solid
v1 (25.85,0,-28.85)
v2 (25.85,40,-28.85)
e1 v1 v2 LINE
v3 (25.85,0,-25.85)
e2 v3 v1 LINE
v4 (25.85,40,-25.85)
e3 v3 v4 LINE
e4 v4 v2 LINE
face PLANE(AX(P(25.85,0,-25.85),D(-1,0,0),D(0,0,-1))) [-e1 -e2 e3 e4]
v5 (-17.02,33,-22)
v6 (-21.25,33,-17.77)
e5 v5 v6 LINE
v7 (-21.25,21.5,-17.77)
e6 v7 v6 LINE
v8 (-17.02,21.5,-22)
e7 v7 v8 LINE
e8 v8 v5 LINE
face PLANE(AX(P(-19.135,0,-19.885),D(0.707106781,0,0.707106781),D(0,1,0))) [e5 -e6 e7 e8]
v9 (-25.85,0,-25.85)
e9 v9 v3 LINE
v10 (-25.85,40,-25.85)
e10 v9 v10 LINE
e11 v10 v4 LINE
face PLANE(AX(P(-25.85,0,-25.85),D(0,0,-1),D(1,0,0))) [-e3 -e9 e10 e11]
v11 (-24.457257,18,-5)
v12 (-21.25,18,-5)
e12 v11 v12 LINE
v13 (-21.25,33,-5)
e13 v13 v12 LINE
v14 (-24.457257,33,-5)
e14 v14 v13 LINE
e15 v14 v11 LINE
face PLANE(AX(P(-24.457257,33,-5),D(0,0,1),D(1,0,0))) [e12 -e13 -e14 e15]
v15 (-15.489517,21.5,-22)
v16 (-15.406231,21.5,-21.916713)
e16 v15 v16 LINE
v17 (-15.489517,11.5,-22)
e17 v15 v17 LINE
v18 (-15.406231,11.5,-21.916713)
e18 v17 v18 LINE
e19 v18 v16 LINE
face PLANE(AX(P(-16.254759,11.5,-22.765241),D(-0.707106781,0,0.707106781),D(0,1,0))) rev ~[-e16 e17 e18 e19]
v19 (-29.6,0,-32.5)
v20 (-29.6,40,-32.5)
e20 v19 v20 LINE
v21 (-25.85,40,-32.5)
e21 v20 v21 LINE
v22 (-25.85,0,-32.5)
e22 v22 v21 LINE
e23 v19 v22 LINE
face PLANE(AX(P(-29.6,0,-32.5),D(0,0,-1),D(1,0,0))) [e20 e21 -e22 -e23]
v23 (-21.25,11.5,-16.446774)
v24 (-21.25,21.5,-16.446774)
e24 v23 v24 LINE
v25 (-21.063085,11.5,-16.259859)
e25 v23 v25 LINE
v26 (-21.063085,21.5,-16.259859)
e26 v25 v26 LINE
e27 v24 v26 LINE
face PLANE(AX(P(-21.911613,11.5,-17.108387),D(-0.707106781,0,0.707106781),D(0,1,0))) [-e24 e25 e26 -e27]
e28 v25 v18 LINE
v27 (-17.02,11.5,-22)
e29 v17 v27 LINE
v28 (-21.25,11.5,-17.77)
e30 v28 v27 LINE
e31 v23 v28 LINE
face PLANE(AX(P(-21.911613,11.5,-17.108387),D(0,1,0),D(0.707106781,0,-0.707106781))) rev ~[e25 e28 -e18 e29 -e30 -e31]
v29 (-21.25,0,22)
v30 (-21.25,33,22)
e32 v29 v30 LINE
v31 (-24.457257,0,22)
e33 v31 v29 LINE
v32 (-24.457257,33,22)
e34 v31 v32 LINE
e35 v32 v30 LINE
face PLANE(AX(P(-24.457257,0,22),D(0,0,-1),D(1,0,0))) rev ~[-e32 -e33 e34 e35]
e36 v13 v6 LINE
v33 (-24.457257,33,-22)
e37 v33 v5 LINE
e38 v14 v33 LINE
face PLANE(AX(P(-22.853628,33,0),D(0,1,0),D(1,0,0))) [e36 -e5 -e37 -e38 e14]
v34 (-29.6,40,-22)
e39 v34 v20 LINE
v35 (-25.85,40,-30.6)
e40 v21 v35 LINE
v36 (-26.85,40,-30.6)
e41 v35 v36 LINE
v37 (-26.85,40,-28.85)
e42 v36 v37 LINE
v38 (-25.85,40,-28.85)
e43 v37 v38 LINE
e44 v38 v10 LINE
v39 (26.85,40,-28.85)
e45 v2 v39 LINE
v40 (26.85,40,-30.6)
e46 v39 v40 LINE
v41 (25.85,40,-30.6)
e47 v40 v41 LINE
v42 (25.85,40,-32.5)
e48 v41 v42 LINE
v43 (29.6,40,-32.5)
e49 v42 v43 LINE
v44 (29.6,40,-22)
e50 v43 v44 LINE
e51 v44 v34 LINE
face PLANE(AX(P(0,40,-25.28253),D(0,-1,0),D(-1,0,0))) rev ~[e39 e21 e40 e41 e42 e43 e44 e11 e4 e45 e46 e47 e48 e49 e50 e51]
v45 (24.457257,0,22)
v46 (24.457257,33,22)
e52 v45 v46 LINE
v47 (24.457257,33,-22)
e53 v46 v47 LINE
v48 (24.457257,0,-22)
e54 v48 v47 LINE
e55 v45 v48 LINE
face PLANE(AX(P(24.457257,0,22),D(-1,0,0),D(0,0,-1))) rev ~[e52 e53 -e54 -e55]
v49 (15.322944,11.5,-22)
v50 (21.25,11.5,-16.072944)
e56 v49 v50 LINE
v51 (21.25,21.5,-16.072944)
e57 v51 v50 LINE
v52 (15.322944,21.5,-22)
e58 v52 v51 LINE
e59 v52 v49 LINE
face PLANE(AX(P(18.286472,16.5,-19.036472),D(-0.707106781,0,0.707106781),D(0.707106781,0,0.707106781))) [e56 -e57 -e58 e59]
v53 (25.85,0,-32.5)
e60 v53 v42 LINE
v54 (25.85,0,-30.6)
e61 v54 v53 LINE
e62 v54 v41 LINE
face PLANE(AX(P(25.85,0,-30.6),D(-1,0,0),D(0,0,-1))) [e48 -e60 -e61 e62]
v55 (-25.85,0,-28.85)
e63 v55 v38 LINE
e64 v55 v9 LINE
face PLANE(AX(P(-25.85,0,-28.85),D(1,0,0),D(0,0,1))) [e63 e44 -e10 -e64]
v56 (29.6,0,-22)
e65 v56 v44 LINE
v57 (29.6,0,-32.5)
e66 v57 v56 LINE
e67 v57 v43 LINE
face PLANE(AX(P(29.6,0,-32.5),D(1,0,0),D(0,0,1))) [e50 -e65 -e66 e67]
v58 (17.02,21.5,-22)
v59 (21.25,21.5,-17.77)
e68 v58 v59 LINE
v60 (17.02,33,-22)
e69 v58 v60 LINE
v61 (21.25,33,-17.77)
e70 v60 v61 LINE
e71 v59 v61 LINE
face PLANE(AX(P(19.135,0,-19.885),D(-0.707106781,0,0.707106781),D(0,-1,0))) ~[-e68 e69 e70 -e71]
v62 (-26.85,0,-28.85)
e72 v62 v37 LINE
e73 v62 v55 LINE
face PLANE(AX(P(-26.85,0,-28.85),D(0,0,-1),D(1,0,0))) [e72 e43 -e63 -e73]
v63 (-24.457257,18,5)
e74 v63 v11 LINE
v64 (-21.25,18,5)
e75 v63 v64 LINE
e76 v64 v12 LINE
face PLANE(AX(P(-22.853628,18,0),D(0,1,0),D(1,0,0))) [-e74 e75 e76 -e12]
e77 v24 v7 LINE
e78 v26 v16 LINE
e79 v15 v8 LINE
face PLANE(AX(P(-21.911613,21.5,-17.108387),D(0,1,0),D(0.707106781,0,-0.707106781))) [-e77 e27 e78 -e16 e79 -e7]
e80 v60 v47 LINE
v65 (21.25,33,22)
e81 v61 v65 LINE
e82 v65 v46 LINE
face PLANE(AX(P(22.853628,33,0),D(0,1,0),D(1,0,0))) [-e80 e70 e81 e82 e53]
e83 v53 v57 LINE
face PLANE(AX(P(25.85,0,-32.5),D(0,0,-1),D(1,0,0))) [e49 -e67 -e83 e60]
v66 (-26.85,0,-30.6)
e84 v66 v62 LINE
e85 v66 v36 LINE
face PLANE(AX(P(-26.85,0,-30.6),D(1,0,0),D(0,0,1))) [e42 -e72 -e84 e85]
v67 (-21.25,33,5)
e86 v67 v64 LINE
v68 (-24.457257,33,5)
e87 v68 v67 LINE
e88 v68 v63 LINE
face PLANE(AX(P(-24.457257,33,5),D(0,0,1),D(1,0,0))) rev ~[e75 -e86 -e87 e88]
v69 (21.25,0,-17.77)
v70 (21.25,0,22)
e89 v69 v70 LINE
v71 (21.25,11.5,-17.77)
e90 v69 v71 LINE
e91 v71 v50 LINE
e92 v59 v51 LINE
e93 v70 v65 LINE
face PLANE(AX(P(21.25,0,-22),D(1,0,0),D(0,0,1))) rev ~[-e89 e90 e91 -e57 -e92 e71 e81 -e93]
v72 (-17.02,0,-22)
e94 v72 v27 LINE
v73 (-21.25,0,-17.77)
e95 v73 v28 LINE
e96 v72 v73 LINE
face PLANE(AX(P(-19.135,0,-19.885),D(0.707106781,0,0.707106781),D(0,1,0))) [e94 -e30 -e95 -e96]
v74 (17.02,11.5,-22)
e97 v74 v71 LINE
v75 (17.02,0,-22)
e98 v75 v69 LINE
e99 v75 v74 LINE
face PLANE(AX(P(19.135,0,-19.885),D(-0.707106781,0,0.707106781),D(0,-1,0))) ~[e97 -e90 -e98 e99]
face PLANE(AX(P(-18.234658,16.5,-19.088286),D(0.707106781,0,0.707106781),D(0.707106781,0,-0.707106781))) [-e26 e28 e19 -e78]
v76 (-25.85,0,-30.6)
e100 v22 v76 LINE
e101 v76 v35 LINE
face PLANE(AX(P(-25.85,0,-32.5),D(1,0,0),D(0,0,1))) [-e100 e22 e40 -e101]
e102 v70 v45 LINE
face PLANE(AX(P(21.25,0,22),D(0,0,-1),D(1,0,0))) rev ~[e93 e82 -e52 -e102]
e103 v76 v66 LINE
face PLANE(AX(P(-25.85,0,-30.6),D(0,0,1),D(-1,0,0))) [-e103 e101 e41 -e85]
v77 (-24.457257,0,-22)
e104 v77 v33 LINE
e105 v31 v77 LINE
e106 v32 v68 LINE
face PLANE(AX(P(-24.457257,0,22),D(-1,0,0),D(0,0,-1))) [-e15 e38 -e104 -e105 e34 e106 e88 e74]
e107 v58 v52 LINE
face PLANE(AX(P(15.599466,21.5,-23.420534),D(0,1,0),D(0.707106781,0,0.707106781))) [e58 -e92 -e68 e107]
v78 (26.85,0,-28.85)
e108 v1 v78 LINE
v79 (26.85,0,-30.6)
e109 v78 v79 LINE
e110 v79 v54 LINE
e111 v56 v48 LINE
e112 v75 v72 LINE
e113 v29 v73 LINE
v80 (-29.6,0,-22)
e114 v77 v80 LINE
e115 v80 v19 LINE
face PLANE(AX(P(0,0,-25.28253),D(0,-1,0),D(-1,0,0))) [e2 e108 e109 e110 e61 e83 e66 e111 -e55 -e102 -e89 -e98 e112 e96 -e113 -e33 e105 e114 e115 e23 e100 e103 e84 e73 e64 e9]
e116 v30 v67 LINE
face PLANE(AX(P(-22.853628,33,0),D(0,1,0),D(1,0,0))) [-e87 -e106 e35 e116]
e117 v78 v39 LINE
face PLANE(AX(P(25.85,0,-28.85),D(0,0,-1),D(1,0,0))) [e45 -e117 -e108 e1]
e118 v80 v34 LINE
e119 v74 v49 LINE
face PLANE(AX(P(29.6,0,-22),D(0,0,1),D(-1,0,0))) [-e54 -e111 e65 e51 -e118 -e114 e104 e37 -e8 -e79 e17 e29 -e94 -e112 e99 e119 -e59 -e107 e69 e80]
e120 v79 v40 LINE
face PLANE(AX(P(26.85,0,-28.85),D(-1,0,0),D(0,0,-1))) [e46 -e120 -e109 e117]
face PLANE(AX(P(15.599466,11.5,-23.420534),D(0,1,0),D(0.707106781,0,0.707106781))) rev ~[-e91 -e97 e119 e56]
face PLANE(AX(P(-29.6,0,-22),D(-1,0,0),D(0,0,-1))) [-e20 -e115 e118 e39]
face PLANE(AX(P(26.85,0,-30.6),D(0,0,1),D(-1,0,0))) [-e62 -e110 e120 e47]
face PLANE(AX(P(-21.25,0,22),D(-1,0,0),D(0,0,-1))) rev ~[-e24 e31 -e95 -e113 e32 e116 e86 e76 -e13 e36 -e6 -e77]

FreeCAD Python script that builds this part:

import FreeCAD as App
import Part
import Sketcher

V = App.Vector


def edges_at(feature, points):
    """Names of the edges that pass closest to the given points."""
    edges = feature.Shape.Edges
    near = lambda p: min(range(len(edges)), key=lambda i: edges[i].distToShape(Part.Vertex(*p))[0])
    return sorted({f"Edge{near(p) + 1}" for p in points})


def add_polygon(sketch, points):
    """Adds a closed chain of lines whose ends are joined by coincident constraints."""
    first, n = sketch.GeometryCount, len(points)
    for a, b in zip(points, points[1:] + points[:1]):
        sketch.addGeometry(Part.LineSegment(App.Vector(*a, 0), App.Vector(*b, 0)), False)
    for i in range(n):
        sketch.addConstraint(Sketcher.Constraint("Coincident", first + i, 2, first + (i + 1) % n, 1))

doc = App.newDocument("Part")
params = doc.addObject("Spreadsheet::Sheet", "Params")
for row, (alias, value) in enumerate([
    ("sketch1_height", "44 mm"),
    ("pad1_length", "33 mm"),
    ("sketch2_height", "44 mm"),
    ("pad2_length", "33 mm"),
    ("sketch3_width", "1 mm"),
    ("sketch3_height", "3 mm"),
    ("sketch3_width2", "59.2 mm"),
    ("sketch3_width3", "51.7 mm"),
    ("sketch3_height2", "1.9 mm"),
    ("pad3_length", "40 mm"),
    ("chamfer_size", "4.23 mm"),
    ("sketch4_width", "8 mm"),
    ("sketch4_height", "10 mm"),
    ("pad4_length", "1.2 mm"),
    ("sketch5_width", "10 mm"),
    ("pad5_length", "1.2 mm"),
    ("sketch6_height", "10 mm"),
    ("pocket1_length", "15 mm"),
], start=1):
    params.set(f"A{row}", alias)
    params.set(f"B{row}", "=" + value)
    params.setAlias(f"B{row}", alias)

body = doc.addObject("PartDesign::Body", "Body")

sketch1 = body.newObject("Sketcher::SketchObject", "Sketch")
sketch1.AttachmentSupport = (doc.getObject("XZ_Plane"), [""])
sketch1.MapMode = "FlatFace"
add_polygon(sketch1, [(-24.5, -22), (-24.5, 22), (-21.3, 22), (-21.3, -22)])
sketch1.addConstraint([
    Sketcher.Constraint("Vertical", 0),
    Sketcher.Constraint("Horizontal", 1),
    Sketcher.Constraint("Vertical", 2),
    Sketcher.Constraint("Horizontal", 3),
    Sketcher.Constraint("DistanceY", 0, 1, 0, 2, 44.0),
    Sketcher.Constraint("DistanceY", -1, 1, 0, 2, 22.0),
    Sketcher.Constraint("DistanceX", 1, 2, -1, 1, 21.25),
    Sketcher.Constraint("DistanceX", 1, 1, 1, 2, 3.207257),
])
sketch1.setExpression("Constraints[8]", "Params.sketch1_height")
pad1 = body.newObject("PartDesign::Pad", "Pad")
pad1.Profile = sketch1
pad1.setExpression("Length", "Params.pad1_length")
pad1.Reversed = True
body2 = doc.addObject("PartDesign::Body", "Body001")

sketch2 = body2.newObject("Sketcher::SketchObject", "Sketch001")
sketch2.AttachmentSupport = (doc.getObject("XZ_Plane001"), [""])
sketch2.MapMode = "FlatFace"
add_polygon(sketch2, [(21.2, -22), (21.2, 22), (24.5, 22), (24.5, -22)])
sketch2.addConstraint([
    Sketcher.Constraint("Vertical", 0),
    Sketcher.Constraint("Horizontal", 1),
    Sketcher.Constraint("Vertical", 2),
    Sketcher.Constraint("Horizontal", 3),
    Sketcher.Constraint("DistanceY", 0, 1, 0, 2, 44.0),
    Sketcher.Constraint("DistanceY", -1, 1, 0, 2, 22.0),
    Sketcher.Constraint("DistanceX", -1, 1, 0, 2, 21.25),
    Sketcher.Constraint("DistanceX", 1, 1, 1, 2, 3.207257),
])
sketch2.setExpression("Constraints[8]", "Params.sketch2_height")
pad2 = body2.newObject("PartDesign::Pad", "Pad001")
pad2.Profile = sketch2
pad2.setExpression("Length", "Params.pad2_length")
pad2.Reversed = True
body.AllowCompound = True
doc.recompute()

boolean = body.newObject("PartDesign::Boolean", "Boolean")
boolean.Type = "Fuse"
boolean.addObjects([body2])

sketch3 = body.newObject("Sketcher::SketchObject", "Sketch002")
sketch3.AttachmentSupport = (doc.getObject("XZ_Plane"), [""])
sketch3.MapMode = "FlatFace"
add_polygon(sketch3, [(-25.9, -28.9), (-26.9, -28.9), (-26.9, -30.6), (-25.9, -30.6), (-25.9, -32.5), (-29.6, -32.5), (-29.6, -22), (29.6, -22), (29.6, -32.5), (25.9, -32.5), (25.9, -30.6), (26.9, -30.6), (26.9, -28.9), (25.9, -28.9), (25.9, -25.9), (-25.9, -25.9)])
sketch3.addConstraint([
    Sketcher.Constraint("Horizontal", 0),
    Sketcher.Constraint("Vertical", 1),
    Sketcher.Constraint("Horizontal", 2),
    Sketcher.Constraint("Vertical", 3),
    Sketcher.Constraint("Horizontal", 4),
    Sketcher.Constraint("Vertical", 5),
    Sketcher.Constraint("Horizontal", 6),
    Sketcher.Constraint("Vertical", 7),
    Sketcher.Constraint("Horizontal", 8),
    Sketcher.Constraint("Vertical", 9),
    Sketcher.Constraint("Horizontal", 10),
    Sketcher.Constraint("Vertical", 11),
    Sketcher.Constraint("Horizontal", 12),
    Sketcher.Constraint("Vertical", 13),
    Sketcher.Constraint("Horizontal", 14),
    Sketcher.Constraint("Vertical", 15),
    Sketcher.Constraint("Symmetric", 4, 2, 7, 2, -2),
    Sketcher.Constraint("Symmetric", 2, 2, 9, 2, -2),
    Sketcher.Constraint("Symmetric", 0, 2, 11, 2, -2),
    Sketcher.Constraint("Vertical", 9, 2, 12, 2),
    Sketcher.Constraint("Vertical", 3, 2, 14, 2),
    Sketcher.Constraint("DistanceX", 0, 2, 0, 1, 1.0),
    Sketcher.Constraint("DistanceY", 13, 1, 13, 2, 3.0),
    Sketcher.Constraint("DistanceX", 6, 1, 6, 2, 59.2),
    Sketcher.Constraint("DistanceX", 14, 2, 14, 1, 51.7),
    Sketcher.Constraint("DistanceY", 3, 2, 3, 1, 1.9),
    Sketcher.Constraint("DistanceY", 5, 1, 5, 2, 10.5),
    Sketcher.Constraint("DistanceY", 5, 2, -1, 1, 22.0),
    Sketcher.Constraint("DistanceY", 1, 2, 1, 1, 1.75),
])
sketch3.setExpression("Constraints[37]", "Params.sketch3_width")
sketch3.setExpression("Constraints[38]", "Params.sketch3_height")
sketch3.setExpression("Constraints[39]", "Params.sketch3_width2")
sketch3.setExpression("Constraints[40]", "Params.sketch3_width3")
sketch3.setExpression("Constraints[41]", "Params.sketch3_height2")
pad3 = body.newObject("PartDesign::Pad", "Pad002")
pad3.Profile = sketch3
pad3.setExpression("Length", "Params.pad3_length")
pad3.Reversed = True
doc.recompute()

chamfer = body.newObject("PartDesign::Chamfer", "Chamfer")
chamfer.Base = (pad3, edges_at(pad3, [(21.25, 16.5, -22), (-21.25, 16.5, -22)]))
chamfer.setExpression("Size", "Params.chamfer_size")

sketch4 = body.newObject("Sketcher::SketchObject", "Sketch003")
sketch4.Placement = App.Placement(V(-19.51, 0, -19.51), App.Rotation(V(0.707106781, 0, -0.707106781), V(0, 0.999999999, 0), V(0.707106781, 0, 0.707106781), "ZXY"))
add_polygon(sketch4, [(-3, 21), (-3, 11), (5, 11), (5, 21)])
sketch4.addConstraint([
    Sketcher.Constraint("Vertical", 0),
    Sketcher.Constraint("Horizontal", 1),
    Sketcher.Constraint("Vertical", 2),
    Sketcher.Constraint("Horizontal", 3),
    Sketcher.Constraint("DistanceX", 1, 1, 1, 2, 8.0),
    Sketcher.Constraint("DistanceY", 0, 2, 0, 1, 10.0),
    Sketcher.Constraint("DistanceY", -1, 1, 0, 2, 11.5),
    Sketcher.Constraint("DistanceX", 0, 2, -1, 1, 3.396394),
])
sketch4.setExpression("Constraints[8]", "Params.sketch4_width")
sketch4.setExpression("Constraints[9]", "Params.sketch4_height")
pad4 = body.newObject("PartDesign::Pad", "Pad003")
pad4.Profile = sketch4
pad4.setExpression("Length", "Params.pad4_length")

sketch5 = body.newObject("Sketcher::SketchObject", "Sketch004")
sketch5.Placement = App.Placement(V(19.51, 0, -19.51), App.Rotation(V(0.707106781, 0, 0.707106781), V(0, 0.999999999, 0), V(-0.707106781, 0, 0.707106781), "ZXY"))
add_polygon(sketch5, [(-6, 21), (-6, 11), (4, 11), (4, 21)])
sketch5.addConstraint([
    Sketcher.Constraint("Vertical", 0),
    Sketcher.Constraint("Horizontal", 1),
    Sketcher.Constraint("Vertical", 2),
    Sketcher.Constraint("Horizontal", 3),
    Sketcher.Constraint("Equal", 3, 0),
    Sketcher.Constraint("DistanceX", 1, 1, 1, 2, 10.0),
    Sketcher.Constraint("DistanceY", -1, 1, 0, 2, 11.5),
    Sketcher.Constraint("DistanceX", 0, 2, -1, 1, 5.53033),
])
sketch5.setExpression("Constraints[9]", "Params.sketch5_width")
pad5 = body.newObject("PartDesign::Pad", "Pad004")
pad5.Profile = sketch5
pad5.setExpression("Length", "Params.pad5_length")

sketch6 = body.newObject("Sketcher::SketchObject", "Sketch005")
sketch6.AttachmentSupport = (doc.getObject("XZ_Plane"), [""])
sketch6.MapMode = "FlatFace"
sketch6.AttachmentOffset = App.Placement(V(0, 0, -33), App.Rotation())
add_polygon(sketch6, [(-24.5, -5), (-24.5, 5), (-21.3, 5), (-21.3, -5)])
sketch6.addConstraint([
    Sketcher.Constraint("Vertical", 0),
    Sketcher.Constraint("Horizontal", 1),
    Sketcher.Constraint("Vertical", 2),
    Sketcher.Constraint("Horizontal", 3),
    Sketcher.Constraint("DistanceY", 0, 1, 0, 2, 10.0),
    Sketcher.Constraint("DistanceY", -1, 1, 0, 2, 5.0),
    Sketcher.Constraint("DistanceX", 1, 2, -1, 1, 21.25),
    Sketcher.Constraint("DistanceX", 1, 1, 1, 2, 3.207257),
])
sketch6.setExpression("Constraints[8]", "Params.sketch6_height")
pocket1 = body.newObject("PartDesign::Pocket", "Pocket")
pocket1.Profile = sketch6
pocket1.setExpression("Length", "Params.pocket1_length")
pocket1.Reversed = True

doc.recompute()
